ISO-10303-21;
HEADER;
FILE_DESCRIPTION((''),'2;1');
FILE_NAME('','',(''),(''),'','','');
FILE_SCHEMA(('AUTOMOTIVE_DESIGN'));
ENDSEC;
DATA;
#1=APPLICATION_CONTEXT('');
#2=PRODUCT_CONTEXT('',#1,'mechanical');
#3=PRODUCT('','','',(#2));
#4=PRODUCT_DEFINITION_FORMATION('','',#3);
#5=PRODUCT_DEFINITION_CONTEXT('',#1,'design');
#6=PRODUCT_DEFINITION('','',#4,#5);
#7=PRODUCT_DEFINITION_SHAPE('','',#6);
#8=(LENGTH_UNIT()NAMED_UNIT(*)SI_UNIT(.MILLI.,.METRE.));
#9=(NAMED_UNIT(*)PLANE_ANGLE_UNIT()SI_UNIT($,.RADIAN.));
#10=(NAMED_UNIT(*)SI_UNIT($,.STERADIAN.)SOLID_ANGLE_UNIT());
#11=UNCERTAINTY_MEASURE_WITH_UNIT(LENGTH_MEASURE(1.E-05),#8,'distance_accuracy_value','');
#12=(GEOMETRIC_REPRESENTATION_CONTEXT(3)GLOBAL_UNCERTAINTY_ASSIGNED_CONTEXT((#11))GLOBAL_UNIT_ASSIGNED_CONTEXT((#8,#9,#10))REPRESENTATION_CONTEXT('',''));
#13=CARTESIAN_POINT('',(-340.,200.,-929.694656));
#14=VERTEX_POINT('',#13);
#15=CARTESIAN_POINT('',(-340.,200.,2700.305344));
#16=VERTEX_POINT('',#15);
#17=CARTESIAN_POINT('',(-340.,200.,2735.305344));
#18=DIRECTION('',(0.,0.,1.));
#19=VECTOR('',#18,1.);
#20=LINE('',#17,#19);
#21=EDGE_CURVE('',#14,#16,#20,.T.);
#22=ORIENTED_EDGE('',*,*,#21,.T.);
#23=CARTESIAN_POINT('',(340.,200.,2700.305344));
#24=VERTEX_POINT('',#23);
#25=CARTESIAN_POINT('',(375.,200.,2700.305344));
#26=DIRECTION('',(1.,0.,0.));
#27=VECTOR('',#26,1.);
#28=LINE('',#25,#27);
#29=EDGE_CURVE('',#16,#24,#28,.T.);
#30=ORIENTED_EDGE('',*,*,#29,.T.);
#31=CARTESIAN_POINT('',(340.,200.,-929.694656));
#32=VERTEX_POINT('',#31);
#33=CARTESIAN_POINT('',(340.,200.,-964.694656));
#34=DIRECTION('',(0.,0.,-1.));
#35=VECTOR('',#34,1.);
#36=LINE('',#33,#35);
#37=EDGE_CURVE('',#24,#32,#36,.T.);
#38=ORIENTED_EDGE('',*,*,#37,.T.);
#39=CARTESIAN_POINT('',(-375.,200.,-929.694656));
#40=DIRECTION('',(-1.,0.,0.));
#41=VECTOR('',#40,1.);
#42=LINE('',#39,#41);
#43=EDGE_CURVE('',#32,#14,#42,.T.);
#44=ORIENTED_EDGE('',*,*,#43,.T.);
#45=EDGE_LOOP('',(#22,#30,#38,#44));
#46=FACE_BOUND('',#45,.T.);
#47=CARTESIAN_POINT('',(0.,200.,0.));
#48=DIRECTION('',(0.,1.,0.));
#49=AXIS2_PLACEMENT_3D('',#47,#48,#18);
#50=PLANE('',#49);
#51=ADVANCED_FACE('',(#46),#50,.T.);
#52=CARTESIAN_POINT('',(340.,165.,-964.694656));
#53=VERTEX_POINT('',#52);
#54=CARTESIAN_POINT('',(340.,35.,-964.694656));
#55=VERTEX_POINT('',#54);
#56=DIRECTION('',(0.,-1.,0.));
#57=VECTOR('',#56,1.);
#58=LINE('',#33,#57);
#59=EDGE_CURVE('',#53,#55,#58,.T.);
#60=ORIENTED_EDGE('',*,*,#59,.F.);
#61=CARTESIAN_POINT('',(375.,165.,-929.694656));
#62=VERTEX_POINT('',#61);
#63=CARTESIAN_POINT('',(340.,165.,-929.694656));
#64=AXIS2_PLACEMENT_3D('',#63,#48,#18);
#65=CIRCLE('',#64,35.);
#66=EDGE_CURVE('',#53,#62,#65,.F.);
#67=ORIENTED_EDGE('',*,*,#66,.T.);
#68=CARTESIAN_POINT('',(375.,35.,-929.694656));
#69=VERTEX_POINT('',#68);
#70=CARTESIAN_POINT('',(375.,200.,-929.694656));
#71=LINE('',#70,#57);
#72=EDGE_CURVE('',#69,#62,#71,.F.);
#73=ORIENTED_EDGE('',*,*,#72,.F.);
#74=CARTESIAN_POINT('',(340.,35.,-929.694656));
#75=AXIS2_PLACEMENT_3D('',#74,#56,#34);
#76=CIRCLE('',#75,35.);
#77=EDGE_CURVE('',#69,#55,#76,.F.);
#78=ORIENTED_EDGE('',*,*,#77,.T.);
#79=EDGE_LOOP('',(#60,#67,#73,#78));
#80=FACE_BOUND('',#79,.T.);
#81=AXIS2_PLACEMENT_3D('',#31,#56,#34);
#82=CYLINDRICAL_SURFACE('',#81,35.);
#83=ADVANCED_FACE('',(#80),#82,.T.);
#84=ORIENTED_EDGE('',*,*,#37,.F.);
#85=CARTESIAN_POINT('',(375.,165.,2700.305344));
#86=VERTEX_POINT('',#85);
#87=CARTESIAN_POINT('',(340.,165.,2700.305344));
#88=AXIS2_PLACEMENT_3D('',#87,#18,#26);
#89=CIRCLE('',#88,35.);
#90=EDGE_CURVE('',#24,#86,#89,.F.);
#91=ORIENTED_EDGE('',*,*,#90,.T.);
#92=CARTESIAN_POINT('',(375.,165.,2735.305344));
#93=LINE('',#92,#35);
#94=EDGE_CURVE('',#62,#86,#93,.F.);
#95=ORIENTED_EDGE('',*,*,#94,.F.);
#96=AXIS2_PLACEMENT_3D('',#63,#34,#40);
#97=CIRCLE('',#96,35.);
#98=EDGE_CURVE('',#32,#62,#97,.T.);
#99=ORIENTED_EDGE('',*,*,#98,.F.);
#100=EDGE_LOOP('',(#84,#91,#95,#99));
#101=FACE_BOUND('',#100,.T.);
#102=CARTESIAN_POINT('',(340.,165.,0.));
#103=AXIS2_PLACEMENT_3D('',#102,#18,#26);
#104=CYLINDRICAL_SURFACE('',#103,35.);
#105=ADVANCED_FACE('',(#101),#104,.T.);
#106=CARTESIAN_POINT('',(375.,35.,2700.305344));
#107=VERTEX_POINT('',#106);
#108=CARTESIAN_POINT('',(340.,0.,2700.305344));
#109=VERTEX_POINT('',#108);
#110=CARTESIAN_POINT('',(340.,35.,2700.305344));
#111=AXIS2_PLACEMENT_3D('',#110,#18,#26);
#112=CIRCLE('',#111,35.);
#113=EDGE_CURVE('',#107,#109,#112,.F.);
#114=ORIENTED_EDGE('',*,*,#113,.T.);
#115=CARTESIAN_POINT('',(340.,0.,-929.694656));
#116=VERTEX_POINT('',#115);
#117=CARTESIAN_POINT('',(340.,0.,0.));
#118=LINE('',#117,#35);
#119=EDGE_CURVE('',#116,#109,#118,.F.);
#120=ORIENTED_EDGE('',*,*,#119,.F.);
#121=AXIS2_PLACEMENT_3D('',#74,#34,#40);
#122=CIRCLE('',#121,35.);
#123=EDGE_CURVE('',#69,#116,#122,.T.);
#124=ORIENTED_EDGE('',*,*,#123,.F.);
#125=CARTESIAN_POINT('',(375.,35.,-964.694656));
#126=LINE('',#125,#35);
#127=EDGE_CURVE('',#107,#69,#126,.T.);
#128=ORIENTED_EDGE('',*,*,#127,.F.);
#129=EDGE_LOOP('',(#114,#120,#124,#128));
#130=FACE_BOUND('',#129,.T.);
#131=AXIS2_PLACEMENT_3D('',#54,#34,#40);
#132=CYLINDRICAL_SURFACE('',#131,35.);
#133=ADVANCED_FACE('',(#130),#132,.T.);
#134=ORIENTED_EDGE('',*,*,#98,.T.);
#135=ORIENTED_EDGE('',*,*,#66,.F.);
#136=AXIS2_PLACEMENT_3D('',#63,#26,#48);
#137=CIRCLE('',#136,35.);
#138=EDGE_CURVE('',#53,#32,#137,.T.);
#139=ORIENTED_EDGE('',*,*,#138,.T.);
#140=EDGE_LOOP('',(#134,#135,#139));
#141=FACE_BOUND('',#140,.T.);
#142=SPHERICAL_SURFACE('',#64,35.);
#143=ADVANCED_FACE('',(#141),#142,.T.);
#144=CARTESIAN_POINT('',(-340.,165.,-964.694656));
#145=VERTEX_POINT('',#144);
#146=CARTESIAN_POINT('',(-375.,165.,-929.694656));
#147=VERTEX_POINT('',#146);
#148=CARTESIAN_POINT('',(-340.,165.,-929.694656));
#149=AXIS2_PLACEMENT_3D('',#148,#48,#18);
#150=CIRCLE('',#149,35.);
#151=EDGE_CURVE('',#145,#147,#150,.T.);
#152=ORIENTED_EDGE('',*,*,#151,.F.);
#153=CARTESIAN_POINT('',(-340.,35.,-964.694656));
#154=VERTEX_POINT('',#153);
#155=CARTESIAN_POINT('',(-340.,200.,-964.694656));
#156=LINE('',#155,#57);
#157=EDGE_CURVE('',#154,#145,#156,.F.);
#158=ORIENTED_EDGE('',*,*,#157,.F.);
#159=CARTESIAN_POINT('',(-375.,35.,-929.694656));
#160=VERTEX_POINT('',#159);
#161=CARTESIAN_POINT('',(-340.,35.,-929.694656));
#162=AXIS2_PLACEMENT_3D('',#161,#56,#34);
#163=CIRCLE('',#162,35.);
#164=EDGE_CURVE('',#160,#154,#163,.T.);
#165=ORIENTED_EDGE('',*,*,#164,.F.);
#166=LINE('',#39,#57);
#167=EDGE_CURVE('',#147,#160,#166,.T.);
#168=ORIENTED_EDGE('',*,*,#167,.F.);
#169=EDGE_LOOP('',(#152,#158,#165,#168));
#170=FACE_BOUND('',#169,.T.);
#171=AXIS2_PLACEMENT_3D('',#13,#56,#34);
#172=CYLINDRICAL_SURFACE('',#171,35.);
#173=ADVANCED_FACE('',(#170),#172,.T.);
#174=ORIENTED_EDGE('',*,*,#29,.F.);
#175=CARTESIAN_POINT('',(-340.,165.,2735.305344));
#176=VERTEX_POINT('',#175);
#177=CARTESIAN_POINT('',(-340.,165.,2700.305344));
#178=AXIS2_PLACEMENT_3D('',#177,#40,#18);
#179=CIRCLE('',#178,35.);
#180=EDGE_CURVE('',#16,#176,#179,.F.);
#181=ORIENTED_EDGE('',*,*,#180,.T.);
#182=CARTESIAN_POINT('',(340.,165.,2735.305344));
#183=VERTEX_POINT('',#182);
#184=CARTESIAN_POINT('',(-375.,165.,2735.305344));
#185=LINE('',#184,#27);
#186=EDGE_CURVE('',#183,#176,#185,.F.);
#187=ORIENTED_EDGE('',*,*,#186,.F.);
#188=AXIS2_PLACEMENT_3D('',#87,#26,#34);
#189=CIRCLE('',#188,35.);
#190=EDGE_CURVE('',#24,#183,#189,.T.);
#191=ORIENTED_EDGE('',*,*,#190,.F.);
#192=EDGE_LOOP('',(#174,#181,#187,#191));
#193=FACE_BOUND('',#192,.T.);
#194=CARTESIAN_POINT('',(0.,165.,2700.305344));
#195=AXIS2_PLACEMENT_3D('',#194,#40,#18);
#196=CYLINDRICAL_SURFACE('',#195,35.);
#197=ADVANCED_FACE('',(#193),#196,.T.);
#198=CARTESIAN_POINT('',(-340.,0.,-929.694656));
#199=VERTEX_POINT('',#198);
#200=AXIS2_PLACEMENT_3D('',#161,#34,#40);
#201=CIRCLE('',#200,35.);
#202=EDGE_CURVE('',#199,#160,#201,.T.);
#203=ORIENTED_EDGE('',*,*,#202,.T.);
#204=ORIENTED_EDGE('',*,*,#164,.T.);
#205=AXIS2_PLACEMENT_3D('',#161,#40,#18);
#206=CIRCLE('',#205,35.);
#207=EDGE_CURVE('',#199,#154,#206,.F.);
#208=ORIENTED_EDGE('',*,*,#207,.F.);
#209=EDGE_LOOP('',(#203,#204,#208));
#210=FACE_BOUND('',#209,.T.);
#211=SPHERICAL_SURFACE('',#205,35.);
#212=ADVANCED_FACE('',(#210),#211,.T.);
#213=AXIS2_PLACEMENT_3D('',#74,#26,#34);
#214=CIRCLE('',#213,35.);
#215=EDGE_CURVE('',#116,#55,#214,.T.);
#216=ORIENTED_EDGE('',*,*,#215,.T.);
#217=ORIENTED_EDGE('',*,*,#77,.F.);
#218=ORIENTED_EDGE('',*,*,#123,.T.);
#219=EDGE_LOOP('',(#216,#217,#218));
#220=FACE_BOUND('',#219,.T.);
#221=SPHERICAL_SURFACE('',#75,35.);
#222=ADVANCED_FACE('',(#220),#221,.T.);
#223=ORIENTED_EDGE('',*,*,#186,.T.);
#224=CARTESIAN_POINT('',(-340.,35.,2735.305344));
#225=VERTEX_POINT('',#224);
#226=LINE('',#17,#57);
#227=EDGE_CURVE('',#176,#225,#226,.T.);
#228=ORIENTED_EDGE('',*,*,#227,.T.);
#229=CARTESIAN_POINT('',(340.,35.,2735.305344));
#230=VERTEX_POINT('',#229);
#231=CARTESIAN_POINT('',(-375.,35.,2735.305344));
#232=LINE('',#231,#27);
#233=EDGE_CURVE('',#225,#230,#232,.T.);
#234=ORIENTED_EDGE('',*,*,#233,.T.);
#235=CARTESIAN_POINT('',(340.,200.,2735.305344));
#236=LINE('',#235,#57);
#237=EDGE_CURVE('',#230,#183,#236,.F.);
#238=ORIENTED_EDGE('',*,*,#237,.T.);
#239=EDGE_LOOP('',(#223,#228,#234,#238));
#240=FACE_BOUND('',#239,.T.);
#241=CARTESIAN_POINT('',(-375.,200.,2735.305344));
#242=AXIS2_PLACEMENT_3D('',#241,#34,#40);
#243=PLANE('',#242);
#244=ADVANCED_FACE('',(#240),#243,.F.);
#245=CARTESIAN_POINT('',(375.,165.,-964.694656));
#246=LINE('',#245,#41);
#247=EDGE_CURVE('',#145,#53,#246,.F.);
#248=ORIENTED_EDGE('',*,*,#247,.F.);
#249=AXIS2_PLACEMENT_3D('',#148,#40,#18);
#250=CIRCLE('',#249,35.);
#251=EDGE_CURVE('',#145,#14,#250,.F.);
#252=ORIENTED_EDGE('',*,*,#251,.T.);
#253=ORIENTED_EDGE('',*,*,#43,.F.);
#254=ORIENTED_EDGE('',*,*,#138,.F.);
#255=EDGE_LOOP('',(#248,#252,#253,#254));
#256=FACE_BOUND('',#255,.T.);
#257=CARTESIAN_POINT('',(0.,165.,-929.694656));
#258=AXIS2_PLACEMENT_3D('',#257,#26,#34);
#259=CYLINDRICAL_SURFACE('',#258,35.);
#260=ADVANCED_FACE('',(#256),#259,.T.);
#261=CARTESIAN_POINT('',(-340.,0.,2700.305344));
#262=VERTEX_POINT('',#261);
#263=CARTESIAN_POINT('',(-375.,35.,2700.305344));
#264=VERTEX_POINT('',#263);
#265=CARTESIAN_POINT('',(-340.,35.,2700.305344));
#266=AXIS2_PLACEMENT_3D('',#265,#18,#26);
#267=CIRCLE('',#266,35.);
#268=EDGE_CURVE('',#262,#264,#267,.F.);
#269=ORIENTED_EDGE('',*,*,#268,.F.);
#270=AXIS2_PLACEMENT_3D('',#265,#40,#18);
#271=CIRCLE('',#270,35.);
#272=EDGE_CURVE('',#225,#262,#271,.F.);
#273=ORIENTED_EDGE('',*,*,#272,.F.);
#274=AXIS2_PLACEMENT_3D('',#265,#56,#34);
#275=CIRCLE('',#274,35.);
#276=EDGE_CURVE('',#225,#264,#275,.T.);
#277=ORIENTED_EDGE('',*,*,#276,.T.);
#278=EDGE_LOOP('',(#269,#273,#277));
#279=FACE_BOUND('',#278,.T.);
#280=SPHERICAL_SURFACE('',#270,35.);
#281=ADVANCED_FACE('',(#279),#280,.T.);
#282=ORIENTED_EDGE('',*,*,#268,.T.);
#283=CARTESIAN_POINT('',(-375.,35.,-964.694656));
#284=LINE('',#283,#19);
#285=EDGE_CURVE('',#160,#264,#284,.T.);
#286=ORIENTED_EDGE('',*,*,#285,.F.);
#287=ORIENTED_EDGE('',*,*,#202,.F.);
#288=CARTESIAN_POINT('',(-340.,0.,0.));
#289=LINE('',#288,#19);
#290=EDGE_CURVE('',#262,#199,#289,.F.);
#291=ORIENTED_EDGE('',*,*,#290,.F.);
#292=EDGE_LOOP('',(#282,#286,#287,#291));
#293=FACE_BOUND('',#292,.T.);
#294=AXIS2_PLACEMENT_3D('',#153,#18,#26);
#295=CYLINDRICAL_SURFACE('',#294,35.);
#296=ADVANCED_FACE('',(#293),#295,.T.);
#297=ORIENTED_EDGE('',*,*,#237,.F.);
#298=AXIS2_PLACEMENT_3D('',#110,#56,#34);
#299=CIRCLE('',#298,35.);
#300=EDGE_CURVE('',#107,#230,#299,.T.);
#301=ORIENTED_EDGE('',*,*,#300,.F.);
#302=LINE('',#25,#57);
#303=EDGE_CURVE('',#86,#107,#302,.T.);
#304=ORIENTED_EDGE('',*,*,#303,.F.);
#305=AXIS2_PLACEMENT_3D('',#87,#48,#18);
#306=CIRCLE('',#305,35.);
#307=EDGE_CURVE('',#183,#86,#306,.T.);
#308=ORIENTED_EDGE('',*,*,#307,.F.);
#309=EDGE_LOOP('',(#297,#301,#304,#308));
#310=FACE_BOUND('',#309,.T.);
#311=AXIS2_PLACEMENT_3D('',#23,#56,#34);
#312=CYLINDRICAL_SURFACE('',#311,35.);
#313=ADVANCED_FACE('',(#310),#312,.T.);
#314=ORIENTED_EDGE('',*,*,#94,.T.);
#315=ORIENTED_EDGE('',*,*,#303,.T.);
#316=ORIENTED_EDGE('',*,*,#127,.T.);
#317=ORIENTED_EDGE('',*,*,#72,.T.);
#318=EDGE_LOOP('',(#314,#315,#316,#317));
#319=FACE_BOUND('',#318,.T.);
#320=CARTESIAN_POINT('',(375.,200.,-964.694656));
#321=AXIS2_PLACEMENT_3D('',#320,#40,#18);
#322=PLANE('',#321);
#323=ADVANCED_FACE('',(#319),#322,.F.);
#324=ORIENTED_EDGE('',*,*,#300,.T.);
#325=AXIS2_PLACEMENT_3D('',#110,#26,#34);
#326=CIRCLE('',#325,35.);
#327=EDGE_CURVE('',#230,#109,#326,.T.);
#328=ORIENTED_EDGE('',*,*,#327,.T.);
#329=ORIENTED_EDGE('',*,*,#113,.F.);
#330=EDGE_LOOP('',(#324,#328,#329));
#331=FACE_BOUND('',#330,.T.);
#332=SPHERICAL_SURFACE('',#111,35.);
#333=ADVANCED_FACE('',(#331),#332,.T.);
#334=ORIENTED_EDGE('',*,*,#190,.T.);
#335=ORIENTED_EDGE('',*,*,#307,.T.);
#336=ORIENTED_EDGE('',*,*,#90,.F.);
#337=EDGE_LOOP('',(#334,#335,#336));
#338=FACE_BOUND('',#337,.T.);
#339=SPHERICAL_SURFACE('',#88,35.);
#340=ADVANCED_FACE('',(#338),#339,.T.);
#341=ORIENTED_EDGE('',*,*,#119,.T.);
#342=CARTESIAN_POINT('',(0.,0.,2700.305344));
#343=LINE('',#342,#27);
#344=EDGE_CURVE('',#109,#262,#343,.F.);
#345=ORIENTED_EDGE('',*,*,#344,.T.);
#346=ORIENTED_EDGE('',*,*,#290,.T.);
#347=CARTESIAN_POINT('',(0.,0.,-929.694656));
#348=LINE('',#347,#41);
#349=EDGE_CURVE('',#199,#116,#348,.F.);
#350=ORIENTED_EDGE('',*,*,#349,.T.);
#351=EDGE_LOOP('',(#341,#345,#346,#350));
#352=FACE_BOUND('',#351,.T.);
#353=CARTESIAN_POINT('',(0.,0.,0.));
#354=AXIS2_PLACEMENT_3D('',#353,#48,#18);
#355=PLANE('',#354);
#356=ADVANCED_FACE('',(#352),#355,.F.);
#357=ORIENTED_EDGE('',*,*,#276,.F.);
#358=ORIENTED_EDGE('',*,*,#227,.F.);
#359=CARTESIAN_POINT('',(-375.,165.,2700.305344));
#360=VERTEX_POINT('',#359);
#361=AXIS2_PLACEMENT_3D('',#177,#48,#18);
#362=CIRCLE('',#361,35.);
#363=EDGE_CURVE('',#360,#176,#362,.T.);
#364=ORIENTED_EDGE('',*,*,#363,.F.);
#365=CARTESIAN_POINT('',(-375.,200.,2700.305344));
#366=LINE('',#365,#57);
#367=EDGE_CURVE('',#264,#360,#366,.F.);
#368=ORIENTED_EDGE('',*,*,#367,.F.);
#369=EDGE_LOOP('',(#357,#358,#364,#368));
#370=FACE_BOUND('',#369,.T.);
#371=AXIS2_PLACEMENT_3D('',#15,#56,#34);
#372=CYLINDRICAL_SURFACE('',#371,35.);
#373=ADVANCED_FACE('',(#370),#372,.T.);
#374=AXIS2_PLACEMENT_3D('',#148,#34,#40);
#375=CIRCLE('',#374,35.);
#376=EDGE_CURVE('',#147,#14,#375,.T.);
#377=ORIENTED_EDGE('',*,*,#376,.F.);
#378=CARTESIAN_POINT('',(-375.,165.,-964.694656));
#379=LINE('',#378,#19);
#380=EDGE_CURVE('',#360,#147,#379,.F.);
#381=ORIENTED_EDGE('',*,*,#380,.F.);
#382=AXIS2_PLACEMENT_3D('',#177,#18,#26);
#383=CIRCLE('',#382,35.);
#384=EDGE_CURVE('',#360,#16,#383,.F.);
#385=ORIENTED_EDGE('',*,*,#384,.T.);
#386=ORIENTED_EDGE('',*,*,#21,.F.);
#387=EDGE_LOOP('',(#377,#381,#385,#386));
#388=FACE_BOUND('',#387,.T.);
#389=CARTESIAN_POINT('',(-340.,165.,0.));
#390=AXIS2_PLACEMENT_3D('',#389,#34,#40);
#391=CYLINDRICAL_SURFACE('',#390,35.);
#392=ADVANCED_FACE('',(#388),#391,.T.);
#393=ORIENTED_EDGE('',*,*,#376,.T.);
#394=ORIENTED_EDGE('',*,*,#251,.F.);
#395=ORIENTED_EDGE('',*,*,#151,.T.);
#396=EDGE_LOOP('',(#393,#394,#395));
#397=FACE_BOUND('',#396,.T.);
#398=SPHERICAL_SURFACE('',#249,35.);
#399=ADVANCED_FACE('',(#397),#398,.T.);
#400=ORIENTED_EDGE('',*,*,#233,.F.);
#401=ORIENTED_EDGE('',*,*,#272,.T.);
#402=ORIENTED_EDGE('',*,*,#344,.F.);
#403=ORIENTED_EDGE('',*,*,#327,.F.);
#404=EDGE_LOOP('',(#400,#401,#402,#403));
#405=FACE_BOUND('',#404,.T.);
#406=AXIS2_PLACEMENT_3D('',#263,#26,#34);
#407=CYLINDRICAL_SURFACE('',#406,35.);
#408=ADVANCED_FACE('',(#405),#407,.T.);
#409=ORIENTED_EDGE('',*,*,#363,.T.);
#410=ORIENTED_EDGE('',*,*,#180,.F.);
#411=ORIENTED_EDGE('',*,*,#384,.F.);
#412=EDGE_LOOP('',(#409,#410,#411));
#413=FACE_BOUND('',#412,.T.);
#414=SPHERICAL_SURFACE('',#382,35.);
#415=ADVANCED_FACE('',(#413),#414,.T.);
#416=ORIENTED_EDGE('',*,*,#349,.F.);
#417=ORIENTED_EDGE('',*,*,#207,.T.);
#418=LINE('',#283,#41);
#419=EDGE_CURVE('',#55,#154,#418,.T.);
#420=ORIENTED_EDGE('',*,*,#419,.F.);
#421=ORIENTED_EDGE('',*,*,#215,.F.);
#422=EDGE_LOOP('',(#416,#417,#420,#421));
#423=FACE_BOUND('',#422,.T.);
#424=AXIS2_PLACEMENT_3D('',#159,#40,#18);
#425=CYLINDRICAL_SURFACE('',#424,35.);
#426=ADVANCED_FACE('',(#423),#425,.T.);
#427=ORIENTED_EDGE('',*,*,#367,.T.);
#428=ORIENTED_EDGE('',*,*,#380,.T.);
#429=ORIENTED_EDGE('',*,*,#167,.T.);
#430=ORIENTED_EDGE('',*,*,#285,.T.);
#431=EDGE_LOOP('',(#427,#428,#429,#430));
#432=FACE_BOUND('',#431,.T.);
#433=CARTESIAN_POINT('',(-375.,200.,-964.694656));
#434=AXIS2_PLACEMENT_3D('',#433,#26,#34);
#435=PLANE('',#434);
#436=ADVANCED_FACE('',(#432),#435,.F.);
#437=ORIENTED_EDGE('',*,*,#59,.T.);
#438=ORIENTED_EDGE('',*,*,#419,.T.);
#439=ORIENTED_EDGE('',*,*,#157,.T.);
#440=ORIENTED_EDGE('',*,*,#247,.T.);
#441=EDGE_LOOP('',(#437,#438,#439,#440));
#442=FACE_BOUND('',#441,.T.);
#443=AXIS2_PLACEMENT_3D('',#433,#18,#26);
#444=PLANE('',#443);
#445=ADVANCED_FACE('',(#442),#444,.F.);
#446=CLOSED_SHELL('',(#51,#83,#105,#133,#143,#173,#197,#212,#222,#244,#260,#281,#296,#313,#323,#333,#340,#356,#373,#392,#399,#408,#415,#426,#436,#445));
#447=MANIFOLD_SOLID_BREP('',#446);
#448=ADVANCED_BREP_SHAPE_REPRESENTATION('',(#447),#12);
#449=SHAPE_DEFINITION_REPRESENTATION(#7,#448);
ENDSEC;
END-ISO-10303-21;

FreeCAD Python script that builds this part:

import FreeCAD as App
import Part
import Sketcher
from FreeCAD import Vector

doc = App.newDocument("Part")
body = doc.addObject("PartDesign::Body", "Body")

# Sketch on XZ plane
sketch1 = doc.addObject("Sketcher::SketchObject", "Sketch")
body.addObject(sketch1)
sketch1.AttachmentSupport = (doc.XZ_Plane, [""])
sketch1.MapMode = "FlatFace"
sketch1.addGeometry([
    Part.LineSegment(Vector(-375, -964.694656, 0), Vector(-375, 2735.305344, 0)),
    Part.LineSegment(Vector(-375, 2735.305344, 0), Vector(375, 2735.305344, 0)),
    Part.LineSegment(Vector(375, 2735.305344, 0), Vector(375, -964.694656, 0)),
    Part.LineSegment(Vector(375, -964.694656, 0), Vector(-375, -964.694656, 0)),
], False)
sketch1.addConstraint([
    Sketcher.Constraint("Coincident", 0, 2, 1, 1),
    Sketcher.Constraint("Coincident", 1, 2, 2, 1),
    Sketcher.Constraint("Coincident", 2, 2, 3, 1),
    Sketcher.Constraint("Coincident", 3, 2, 0, 1),
    Sketcher.Constraint("Vertical", 0),
    Sketcher.Constraint("Horizontal", 1),
    Sketcher.Constraint("Vertical", 2),
    Sketcher.Constraint("Horizontal", 3),
    Sketcher.Constraint("DistanceX", 1, 1, 1, 2, 750.0),
    Sketcher.Constraint("DistanceY", 0, 1, 0, 2, 3700.0),
    Sketcher.Constraint("DistanceX", 0, 2, -1, 1, 375.0),
    Sketcher.Constraint("DistanceY", -1, 1, 0, 2, 2735.305344),
])
pad1 = doc.addObject("PartDesign::Pad", "Pad")
body.addObject(pad1)
pad1.Profile = sketch1
pad1.Length = 200
pad1.Reversed = True
doc.recompute()

fillet = doc.addObject("PartDesign::Fillet", "Fillet")
body.addObject(fillet)
fillet.Base = (pad1, ["Edge1"])
fillet.UseAllEdges = True
fillet.Radius = 35

doc.recompute()
